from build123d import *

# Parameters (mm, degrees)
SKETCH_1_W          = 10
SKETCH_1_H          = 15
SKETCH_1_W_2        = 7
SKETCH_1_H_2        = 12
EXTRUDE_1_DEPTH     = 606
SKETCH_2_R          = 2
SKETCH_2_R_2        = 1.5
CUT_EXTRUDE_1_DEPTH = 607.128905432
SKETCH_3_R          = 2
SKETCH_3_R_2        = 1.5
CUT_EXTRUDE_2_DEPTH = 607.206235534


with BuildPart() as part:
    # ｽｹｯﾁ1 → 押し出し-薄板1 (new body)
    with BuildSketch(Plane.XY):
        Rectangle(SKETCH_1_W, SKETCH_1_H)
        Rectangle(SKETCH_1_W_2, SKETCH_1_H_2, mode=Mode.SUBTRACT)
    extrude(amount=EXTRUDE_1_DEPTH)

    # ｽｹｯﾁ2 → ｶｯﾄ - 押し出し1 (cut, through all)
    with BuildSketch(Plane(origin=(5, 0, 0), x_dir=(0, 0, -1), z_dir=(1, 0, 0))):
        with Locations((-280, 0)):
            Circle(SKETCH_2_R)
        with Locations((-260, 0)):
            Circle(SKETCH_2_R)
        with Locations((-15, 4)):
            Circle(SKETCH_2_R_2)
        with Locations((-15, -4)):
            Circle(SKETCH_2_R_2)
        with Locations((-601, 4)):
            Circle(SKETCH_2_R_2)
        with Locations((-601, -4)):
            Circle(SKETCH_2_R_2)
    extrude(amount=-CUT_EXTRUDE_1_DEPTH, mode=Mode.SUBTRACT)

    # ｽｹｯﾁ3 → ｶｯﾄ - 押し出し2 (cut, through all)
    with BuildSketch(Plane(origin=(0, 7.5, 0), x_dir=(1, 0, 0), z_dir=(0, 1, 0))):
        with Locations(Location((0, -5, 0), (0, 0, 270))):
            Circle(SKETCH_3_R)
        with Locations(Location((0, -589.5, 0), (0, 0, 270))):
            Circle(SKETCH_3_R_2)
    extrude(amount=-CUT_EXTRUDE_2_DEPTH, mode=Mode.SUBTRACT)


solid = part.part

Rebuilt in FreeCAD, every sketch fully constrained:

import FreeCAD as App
import Part
import Sketcher
from FreeCAD import Vector

doc = App.newDocument("Part")
body = doc.addObject("PartDesign::Body", "Body")

# Sketch on XY plane
sketch1 = body.newObject("Sketcher::SketchObject", "Sketch")
sketch1.AttachmentSupport = (doc.getObject("XY_Plane"), [""])
sketch1.MapMode = "FlatFace"
sketch1.addGeometry(Part.LineSegment(Vector(-5, 8, 0), Vector(-5, -8, 0)), False)
sketch1.addGeometry(Part.LineSegment(Vector(-5, -8, 0), Vector(5, -8, 0)), False)
sketch1.addGeometry(Part.LineSegment(Vector(5, -8, 0), Vector(5, 8, 0)), False)
sketch1.addGeometry(Part.LineSegment(Vector(5, 8, 0), Vector(-5, 8, 0)), False)
sketch1.addGeometry(Part.LineSegment(Vector(4, -6, 0), Vector(-4, -6, 0)), False)
sketch1.addGeometry(Part.LineSegment(Vector(-4, -6, 0), Vector(-4, 6, 0)), False)
sketch1.addGeometry(Part.LineSegment(Vector(-4, 6, 0), Vector(4, 6, 0)), False)
sketch1.addGeometry(Part.LineSegment(Vector(4, 6, 0), Vector(4, -6, 0)), False)
sketch1.addConstraint(Sketcher.Constraint("Coincident", 0, 2, 1, 1))
sketch1.addConstraint(Sketcher.Constraint("Coincident", 1, 2, 2, 1))
sketch1.addConstraint(Sketcher.Constraint("Coincident", 2, 2, 3, 1))
sketch1.addConstraint(Sketcher.Constraint("Coincident", 3, 2, 0, 1))
sketch1.addConstraint(Sketcher.Constraint("Coincident", 4, 2, 5, 1))
sketch1.addConstraint(Sketcher.Constraint("Coincident", 5, 2, 6, 1))
sketch1.addConstraint(Sketcher.Constraint("Coincident", 6, 2, 7, 1))
sketch1.addConstraint(Sketcher.Constraint("Coincident", 7, 2, 4, 1))
sketch1.addConstraint(Sketcher.Constraint("Vertical", 0))
sketch1.addConstraint(Sketcher.Constraint("Horizontal", 1))
sketch1.addConstraint(Sketcher.Constraint("Vertical", 2))
sketch1.addConstraint(Sketcher.Constraint("Horizontal", 3))
sketch1.addConstraint(Sketcher.Constraint("Horizontal", 4))
sketch1.addConstraint(Sketcher.Constraint("Vertical", 5))
sketch1.addConstraint(Sketcher.Constraint("Horizontal", 6))
sketch1.addConstraint(Sketcher.Constraint("Vertical", 7))
sketch1.addConstraint(Sketcher.Constraint("Symmetric", 0, 2, 2, 2, -1, 1))
sketch1.addConstraint(Sketcher.Constraint("Symmetric", 4, 2, 6, 2, -1, 1))
sketch1.addConstraint(Sketcher.Constraint("DistanceX", 1, 1, 1, 2, 10.0))
sketch1.addConstraint(Sketcher.Constraint("DistanceX", 4, 2, 4, 1, 7.0))
sketch1.addConstraint(Sketcher.Constraint("DistanceY", 0, 2, 0, 1, 15.0))
sketch1.addConstraint(Sketcher.Constraint("DistanceY", 5, 1, 5, 2, 12.0))
pad1 = body.newObject("PartDesign::Pad", "Pad")
pad1.Profile = sketch1
pad1.Length = 606

# Sketch on YZ plane
sketch2 = body.newObject("Sketcher::SketchObject", "Sketch001")
sketch2.AttachmentSupport = (doc.getObject("YZ_Plane"), [""])
sketch2.MapMode = "FlatFace"
sketch2.AttachmentOffset = App.Placement(Vector(0, 0, 5), App.Rotation())
sketch2.addGeometry(Part.Circle(Vector(0, 280, 0), Vector(0, 0, 1), 2), False)
sketch2.addGeometry(Part.Circle(Vector(0, 260, 0), Vector(0, 0, 1), 2), False)
sketch2.addGeometry(Part.Circle(Vector(4, 15, 0), Vector(0, 0, 1), 1.5), False)
sketch2.addGeometry(Part.Circle(Vector(-4, 15, 0), Vector(0, 0, 1), 1.5), False)
sketch2.addGeometry(Part.Circle(Vector(4, 601, 0), Vector(0, 0, 1), 1.5), False)
sketch2.addGeometry(Part.Circle(Vector(-4, 601, 0), Vector(0, 0, 1), 1.5), False)
sketch2.addConstraint(Sketcher.Constraint("Equal", 0, 1))
sketch2.addConstraint(Sketcher.Constraint("Equal", 2, 3))
sketch2.addConstraint(Sketcher.Constraint("Equal", 3, 4))
sketch2.addConstraint(Sketcher.Constraint("Equal", 4, 5))
sketch2.addConstraint(Sketcher.Constraint("Symmetric", 2, 3, 3, 3, -2))
sketch2.addConstraint(Sketcher.Constraint("Symmetric", 4, 3, 5, 3, -2))
sketch2.addConstraint(Sketcher.Constraint("PointOnObject", 0, 3, -2))
sketch2.addConstraint(Sketcher.Constraint("PointOnObject", 1, 3, -2))
sketch2.addConstraint(Sketcher.Constraint("Vertical", 2, 3, 4, 3))
sketch2.addConstraint(Sketcher.Constraint("Diameter", 0, 4.0))
sketch2.addConstraint(Sketcher.Constraint("Diameter", 2, 3.0))
sketch2.addConstraint(Sketcher.Constraint("DistanceY", -1, 1, 0, 3, 280.0))
sketch2.addConstraint(Sketcher.Constraint("DistanceY", -1, 1, 1, 3, 260.0))
sketch2.addConstraint(Sketcher.Constraint("DistanceX", -1, 1, 2, 3, 4.0))
sketch2.addConstraint(Sketcher.Constraint("DistanceY", -1, 1, 2, 3, 15.0))
sketch2.addConstraint(Sketcher.Constraint("DistanceY", -1, 1, 4, 3, 601.0))
pocket1 = body.newObject("PartDesign::Pocket", "Pocket")
pocket1.Profile = sketch2
pocket1.Type = "ThroughAll"

# Sketch on XZ plane
sketch3 = body.newObject("Sketcher::SketchObject", "Sketch002")
sketch3.AttachmentSupport = (doc.getObject("XZ_Plane"), [""])
sketch3.MapMode = "FlatFace"
sketch3.AttachmentOffset = App.Placement(Vector(0, 0, -7.5), App.Rotation())
sketch3.addGeometry(Part.Circle(Vector(0, 5, 0), Vector(0, 0, 1), 2), False)
sketch3.addGeometry(Part.Circle(Vector(0, 589.5, 0), Vector(0, 0, 1), 1.5), False)
sketch3.addConstraint(Sketcher.Constraint("PointOnObject", 0, 3, -2))
sketch3.addConstraint(Sketcher.Constraint("PointOnObject", 1, 3, -2))
sketch3.addConstraint(Sketcher.Constraint("Diameter", 0, 4.0))
sketch3.addConstraint(Sketcher.Constraint("Diameter", 1, 3.0))
sketch3.addConstraint(Sketcher.Constraint("DistanceY", -1, 1, 0, 3, 5.0))
sketch3.addConstraint(Sketcher.Constraint("DistanceY", -1, 1, 1, 3, 589.5))
pocket2 = body.newObject("PartDesign::Pocket", "Pocket001")
pocket2.Profile = sketch3
pocket2.Type = "ThroughAll"
pocket2.Reversed = True

doc.recompute()
